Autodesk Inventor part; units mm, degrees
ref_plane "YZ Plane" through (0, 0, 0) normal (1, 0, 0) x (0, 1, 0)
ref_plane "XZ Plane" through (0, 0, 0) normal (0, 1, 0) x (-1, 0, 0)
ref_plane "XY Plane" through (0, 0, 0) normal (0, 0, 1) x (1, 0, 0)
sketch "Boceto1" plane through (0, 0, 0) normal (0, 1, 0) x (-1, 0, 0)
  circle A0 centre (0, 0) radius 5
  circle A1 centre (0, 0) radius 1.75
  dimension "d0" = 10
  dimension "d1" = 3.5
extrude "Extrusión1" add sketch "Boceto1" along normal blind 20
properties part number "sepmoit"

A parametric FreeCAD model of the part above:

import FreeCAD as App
import Part
import Sketcher
Q = App.Units.Quantity

doc = App.newDocument("Part")
params = doc.addObject("Spreadsheet::Sheet", "Params")
for row, (alias, value) in enumerate([
    ("sketch1_diameter", "10 mm"),
    ("sketch1_diameter2", "3.5 mm"),
    ("pad1_length", "20 mm"),
], start=1):
    params.set(f"A{row}", alias)
    params.set(f"B{row}", "=" + value)
    params.setAlias(f"B{row}", alias)

body = doc.addObject("PartDesign::Body", "Body")

# Sketch on XZ plane
sketch1 = body.newObject("Sketcher::SketchObject", "Sketch")
sketch1.AttachmentSupport = (doc.getObject("XZ_Plane"), [""])
sketch1.MapMode = "FlatFace"
sketch1.addGeometry([
    Part.Circle(App.Vector(0, 0, 0), App.Vector(0, 0, 1), 5),
    Part.Circle(App.Vector(0, 0, 0), App.Vector(0, 0, 1), 1.8),
], False)
sketch1.addConstraint([
    Sketcher.Constraint("Coincident", 0, 3, -1, 1),
    Sketcher.Constraint("Coincident", 1, 3, -1, 1),
    Sketcher.Constraint("Diameter", 0, Q("10 mm")),
    Sketcher.Constraint("Diameter", 1, Q("3.5 mm")),
])
sketch1.setExpression("Constraints[2]", "Params.sketch1_diameter")
sketch1.setExpression("Constraints[3]", "Params.sketch1_diameter2")
pad1 = body.newObject("PartDesign::Pad", "Pad")
pad1.Profile = sketch1
pad1.setExpression("Length", "Params.pad1_length")
pad1.Reversed = True

doc.recompute()
